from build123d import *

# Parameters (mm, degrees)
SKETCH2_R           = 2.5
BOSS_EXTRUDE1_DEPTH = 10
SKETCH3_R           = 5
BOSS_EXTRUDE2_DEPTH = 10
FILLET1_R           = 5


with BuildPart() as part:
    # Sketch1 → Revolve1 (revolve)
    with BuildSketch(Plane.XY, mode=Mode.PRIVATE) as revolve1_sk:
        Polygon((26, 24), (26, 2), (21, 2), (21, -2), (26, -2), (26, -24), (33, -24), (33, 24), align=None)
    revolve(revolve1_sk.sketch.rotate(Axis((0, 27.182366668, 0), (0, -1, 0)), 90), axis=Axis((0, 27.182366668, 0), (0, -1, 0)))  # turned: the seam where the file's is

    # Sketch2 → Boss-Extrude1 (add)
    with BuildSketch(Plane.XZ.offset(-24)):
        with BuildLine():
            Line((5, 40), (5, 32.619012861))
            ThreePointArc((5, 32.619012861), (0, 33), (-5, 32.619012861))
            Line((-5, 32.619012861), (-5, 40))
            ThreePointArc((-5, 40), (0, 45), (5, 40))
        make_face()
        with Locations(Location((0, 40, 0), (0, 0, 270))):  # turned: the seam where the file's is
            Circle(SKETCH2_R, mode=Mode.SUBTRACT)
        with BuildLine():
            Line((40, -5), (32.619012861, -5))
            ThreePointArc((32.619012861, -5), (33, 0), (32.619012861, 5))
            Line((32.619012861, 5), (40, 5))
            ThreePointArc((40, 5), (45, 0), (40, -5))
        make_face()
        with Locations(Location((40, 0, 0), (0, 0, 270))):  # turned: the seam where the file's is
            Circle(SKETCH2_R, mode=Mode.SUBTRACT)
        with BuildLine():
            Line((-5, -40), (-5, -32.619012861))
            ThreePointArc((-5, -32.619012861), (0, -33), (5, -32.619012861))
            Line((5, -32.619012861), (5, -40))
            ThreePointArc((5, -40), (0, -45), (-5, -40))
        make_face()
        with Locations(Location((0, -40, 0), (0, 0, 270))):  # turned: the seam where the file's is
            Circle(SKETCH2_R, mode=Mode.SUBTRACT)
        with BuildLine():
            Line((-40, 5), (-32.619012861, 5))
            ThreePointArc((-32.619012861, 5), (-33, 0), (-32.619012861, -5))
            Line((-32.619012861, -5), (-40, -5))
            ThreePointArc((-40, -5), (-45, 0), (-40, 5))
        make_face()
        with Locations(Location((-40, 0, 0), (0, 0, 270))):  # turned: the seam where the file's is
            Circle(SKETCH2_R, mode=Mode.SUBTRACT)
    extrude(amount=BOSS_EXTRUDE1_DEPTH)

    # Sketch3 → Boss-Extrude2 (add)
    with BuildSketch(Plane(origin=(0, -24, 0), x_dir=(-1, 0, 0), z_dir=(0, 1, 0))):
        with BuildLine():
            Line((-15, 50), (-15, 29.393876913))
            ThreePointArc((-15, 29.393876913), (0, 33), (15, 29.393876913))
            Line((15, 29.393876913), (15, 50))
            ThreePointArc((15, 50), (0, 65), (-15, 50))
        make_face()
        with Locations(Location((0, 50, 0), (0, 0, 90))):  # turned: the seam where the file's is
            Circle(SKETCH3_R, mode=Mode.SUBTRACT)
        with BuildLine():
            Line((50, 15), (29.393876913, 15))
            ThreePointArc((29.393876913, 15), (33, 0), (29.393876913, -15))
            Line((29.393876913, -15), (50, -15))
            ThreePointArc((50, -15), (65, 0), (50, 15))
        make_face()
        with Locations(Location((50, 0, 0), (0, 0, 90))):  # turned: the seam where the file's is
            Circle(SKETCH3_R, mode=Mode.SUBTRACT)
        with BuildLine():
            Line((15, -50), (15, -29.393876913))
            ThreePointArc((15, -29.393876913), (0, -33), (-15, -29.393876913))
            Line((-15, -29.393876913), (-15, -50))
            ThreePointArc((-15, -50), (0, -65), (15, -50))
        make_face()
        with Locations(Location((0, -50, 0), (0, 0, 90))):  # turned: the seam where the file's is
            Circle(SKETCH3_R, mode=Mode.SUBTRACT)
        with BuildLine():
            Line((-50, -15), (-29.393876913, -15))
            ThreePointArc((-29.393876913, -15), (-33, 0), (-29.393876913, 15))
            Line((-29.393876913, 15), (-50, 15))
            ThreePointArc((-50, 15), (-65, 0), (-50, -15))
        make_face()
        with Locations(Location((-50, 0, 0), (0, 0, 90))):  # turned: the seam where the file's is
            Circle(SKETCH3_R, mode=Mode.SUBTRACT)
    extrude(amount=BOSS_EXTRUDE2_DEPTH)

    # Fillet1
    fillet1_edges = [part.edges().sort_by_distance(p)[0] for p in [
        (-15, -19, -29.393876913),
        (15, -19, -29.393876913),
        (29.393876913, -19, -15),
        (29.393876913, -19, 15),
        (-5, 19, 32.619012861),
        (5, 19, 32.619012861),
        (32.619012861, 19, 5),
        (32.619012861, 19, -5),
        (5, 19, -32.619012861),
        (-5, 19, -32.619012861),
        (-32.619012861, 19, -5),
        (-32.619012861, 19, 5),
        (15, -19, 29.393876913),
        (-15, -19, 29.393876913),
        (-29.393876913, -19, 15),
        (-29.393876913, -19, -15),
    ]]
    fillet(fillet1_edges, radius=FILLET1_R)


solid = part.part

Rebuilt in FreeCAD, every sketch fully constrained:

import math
import FreeCAD as App
import Part
import Sketcher

V = App.Vector
Q = App.Units.Quantity


def edges_at(feature, points):
    """Names of the edges that pass closest to the given points."""
    edges = feature.Shape.Edges
    near = lambda p: min(range(len(edges)), key=lambda i: edges[i].distToShape(Part.Vertex(*p))[0])
    return sorted({f"Edge{near(p) + 1}" for p in points})


def add_polygon(sketch, points):
    """Adds a closed chain of lines whose ends are joined by coincident constraints."""
    first, n = sketch.GeometryCount, len(points)
    for a, b in zip(points, points[1:] + points[:1]):
        sketch.addGeometry(Part.LineSegment(App.Vector(*a, 0), App.Vector(*b, 0)), False)
    for i in range(n):
        sketch.addConstraint(Sketcher.Constraint("Coincident", first + i, 2, first + (i + 1) % n, 1))

doc = App.newDocument("Part")
body = doc.addObject("PartDesign::Body", "Body")

sketch1 = doc.addObject("Sketcher::SketchObject", "Sketch")
body.addObject(sketch1)
sketch1.AttachmentSupport = (doc.XY_Plane, [""])
sketch1.MapMode = "FlatFace"
add_polygon(sketch1, [(26, 24), (26, 2), (21, 2), (21, -2), (26, -2), (26, -24), (33, -24), (33, 24)])
sketch1.addConstraint(Sketcher.Constraint("Vertical", 0))
sketch1.addConstraint(Sketcher.Constraint("Horizontal", 1))
sketch1.addConstraint(Sketcher.Constraint("Vertical", 2))
sketch1.addConstraint(Sketcher.Constraint("Horizontal", 3))
sketch1.addConstraint(Sketcher.Constraint("Vertical", 4))
sketch1.addConstraint(Sketcher.Constraint("Horizontal", 5))
sketch1.addConstraint(Sketcher.Constraint("Vertical", 6))
sketch1.addConstraint(Sketcher.Constraint("Horizontal", 7))
sketch1.addConstraint(Sketcher.Constraint("Symmetric", 0, 2, 3, 2, -1))
sketch1.addConstraint(Sketcher.Constraint("Equal", 0, 4))
sketch1.addConstraint(Sketcher.Constraint("DistanceX", 1, 2, 1, 1, Q("5 mm")))
sketch1.addConstraint(Sketcher.Constraint("DistanceX", 5, 1, 5, 2, Q("7 mm")))
sketch1.addConstraint(Sketcher.Constraint("DistanceY", 0, 2, 0, 1, Q("22 mm")))
sketch1.addConstraint(Sketcher.Constraint("DistanceY", 2, 2, 2, 1, Q("4 mm")))
sketch1.addConstraint(Sketcher.Constraint("DistanceX", -1, 1, 0, 2, Q("26 mm")))
revolution = doc.addObject("PartDesign::Revolution", "Revolution")
body.addObject(revolution)
revolution.Profile = sketch1
revolution.ReferenceAxis = (sketch1, ["V_Axis"])
revolution.Angle = 360

sketch2 = doc.addObject("Sketcher::SketchObject", "Sketch001")
body.addObject(sketch2)
sketch2.AttachmentSupport = (doc.XZ_Plane, [""])
sketch2.MapMode = "FlatFace"
sketch2.AttachmentOffset = App.Placement(V(0, 0, -24), App.Rotation())
sketch2.addGeometry(Part.LineSegment(V(5, 32.6, 0), V(5, 40, 0)), False)
sketch2.addGeometry(Part.ArcOfCircle(Part.Circle(V(0, 40, 0), V(0, 0, 1), 5), math.radians(0), math.radians(180)), False)
sketch2.addGeometry(Part.LineSegment(V(-5, 40, 0), V(-5, 32.6, 0)), False)
sketch2.addGeometry(Part.ArcOfCircle(Part.Circle(V(0, 0, 0), V(0, 0, 1), 33), math.radians(81.29), math.radians(98.71)), False)
sketch2.addGeometry(Part.Circle(V(0, 40, 0), V(0, 0, 1), 2.5), False)
sketch2.addGeometry(Part.LineSegment(V(32.6, -5, 0), V(40, -5, 0)), False)
sketch2.addGeometry(Part.ArcOfCircle(Part.Circle(V(40, 0, 0), V(0, 0, 1), 5), math.radians(-90), math.radians(90)), False)
sketch2.addGeometry(Part.LineSegment(V(40, 5, 0), V(32.6, 5, 0)), False)
sketch2.addGeometry(Part.ArcOfCircle(Part.Circle(V(0, 0, 0), V(0, 0, 1), 33), math.radians(-8.71), math.radians(8.71)), False)
sketch2.addGeometry(Part.Circle(V(40, 0, 0), V(0, 0, 1), 2.5), False)
sketch2.addGeometry(Part.LineSegment(V(-5, -32.6, 0), V(-5, -40, 0)), False)
sketch2.addGeometry(Part.ArcOfCircle(Part.Circle(V(0, -40, 0), V(0, 0, 1), 5), math.radians(180), math.radians(360)), False)
sketch2.addGeometry(Part.LineSegment(V(5, -40, 0), V(5, -32.6, 0)), False)
sketch2.addGeometry(Part.ArcOfCircle(Part.Circle(V(0, 0, 0), V(0, 0, 1), 33), math.radians(-98.71), math.radians(-81.29)), False)
sketch2.addGeometry(Part.Circle(V(0, -40, 0), V(0, 0, 1), 2.5), False)
sketch2.addGeometry(Part.LineSegment(V(-32.6, 5, 0), V(-40, 5, 0)), False)
sketch2.addGeometry(Part.ArcOfCircle(Part.Circle(V(-40, 0, 0), V(0, 0, 1), 5), math.radians(90), math.radians(270)), False)
sketch2.addGeometry(Part.LineSegment(V(-40, -5, 0), V(-32.6, -5, 0)), False)
sketch2.addGeometry(Part.ArcOfCircle(Part.Circle(V(0, 0, 0), V(0, 0, 1), 33), math.radians(171.29), math.radians(188.71)), False)
sketch2.addGeometry(Part.Circle(V(-40, 0, 0), V(0, 0, 1), 2.5), False)
sketch2.addConstraint(Sketcher.Constraint("Tangent", 0, 2, 1, 1))
sketch2.addConstraint(Sketcher.Constraint("Tangent", 1, 2, 2, 1))
sketch2.addConstraint(Sketcher.Constraint("Coincident", 2, 2, 3, 2))
sketch2.addConstraint(Sketcher.Constraint("Coincident", 3, 1, 0, 1))
sketch2.addConstraint(Sketcher.Constraint("Tangent", 5, 2, 6, 1))
sketch2.addConstraint(Sketcher.Constraint("Tangent", 6, 2, 7, 1))
sketch2.addConstraint(Sketcher.Constraint("Coincident", 7, 2, 8, 2))
sketch2.addConstraint(Sketcher.Constraint("Coincident", 8, 1, 5, 1))
sketch2.addConstraint(Sketcher.Constraint("Tangent", 10, 2, 11, 1))
sketch2.addConstraint(Sketcher.Constraint("Tangent", 11, 2, 12, 1))
sketch2.addConstraint(Sketcher.Constraint("Coincident", 12, 2, 13, 2))
sketch2.addConstraint(Sketcher.Constraint("Coincident", 13, 1, 10, 1))
sketch2.addConstraint(Sketcher.Constraint("Tangent", 15, 2, 16, 1))
sketch2.addConstraint(Sketcher.Constraint("Tangent", 16, 2, 17, 1))
sketch2.addConstraint(Sketcher.Constraint("Coincident", 17, 2, 18, 2))
sketch2.addConstraint(Sketcher.Constraint("Coincident", 18, 1, 15, 1))
sketch2.addConstraint(Sketcher.Constraint("Vertical", 0))
sketch2.addConstraint(Sketcher.Constraint("Vertical", 2))
sketch2.addConstraint(Sketcher.Constraint("Horizontal", 5))
sketch2.addConstraint(Sketcher.Constraint("Horizontal", 7))
sketch2.addConstraint(Sketcher.Constraint("Vertical", 10))
sketch2.addConstraint(Sketcher.Constraint("Vertical", 12))
sketch2.addConstraint(Sketcher.Constraint("Horizontal", 15))
sketch2.addConstraint(Sketcher.Constraint("Horizontal", 17))
sketch2.addConstraint(Sketcher.Constraint("Coincident", 3, 3, -1, 1))
sketch2.addConstraint(Sketcher.Constraint("Coincident", 8, 3, -1, 1))
sketch2.addConstraint(Sketcher.Constraint("Coincident", 13, 3, -1, 1))
sketch2.addConstraint(Sketcher.Constraint("Coincident", 18, 3, -1, 1))
sketch2.addConstraint(Sketcher.Constraint("Coincident", 4, 3, 1, 3))
sketch2.addConstraint(Sketcher.Constraint("Coincident", 9, 3, 6, 3))
sketch2.addConstraint(Sketcher.Constraint("Coincident", 14, 3, 11, 3))
sketch2.addConstraint(Sketcher.Constraint("Coincident", 19, 3, 16, 3))
sketch2.addConstraint(Sketcher.Constraint("Equal", 1, 6))
sketch2.addConstraint(Sketcher.Constraint("Equal", 3, 8))
sketch2.addConstraint(Sketcher.Constraint("Equal", 4, 9))
sketch2.addConstraint(Sketcher.Constraint("Equal", 6, 11))
sketch2.addConstraint(Sketcher.Constraint("Equal", 8, 13))
sketch2.addConstraint(Sketcher.Constraint("Equal", 9, 14))
sketch2.addConstraint(Sketcher.Constraint("Equal", 11, 16))
sketch2.addConstraint(Sketcher.Constraint("Equal", 13, 18))
sketch2.addConstraint(Sketcher.Constraint("Equal", 14, 19))
sketch2.addConstraint(Sketcher.Constraint("Symmetric", 1, 3, 11, 3, -1, 1))
sketch2.addConstraint(Sketcher.Constraint("Symmetric", 6, 3, 16, 3, -1, 1))
sketch2.addConstraint(Sketcher.Constraint("PointOnObject", 1, 3, -2))
sketch2.addConstraint(Sketcher.Constraint("PointOnObject", 6, 3, -1))
sketch2.addConstraint(Sketcher.Constraint("Equal", 17, 0))
sketch2.addConstraint(Sketcher.Constraint("Diameter", 4, Q("5 mm")))
sketch2.addConstraint(Sketcher.Constraint("Radius", 1, Q("5 mm")))
sketch2.addConstraint(Sketcher.Constraint("Radius", 3, Q("33 mm")))
sketch2.addConstraint(Sketcher.Constraint("DistanceY", -1, 1, 1, 3, Q("40 mm")))
pad1 = doc.addObject("PartDesign::Pad", "Pad")
body.addObject(pad1)
pad1.Profile = sketch2
pad1.Length = 10

sketch3 = doc.addObject("Sketcher::SketchObject", "Sketch002")
body.addObject(sketch3)
sketch3.AttachmentSupport = (doc.XZ_Plane, [""])
sketch3.MapMode = "FlatFace"
sketch3.AttachmentOffset = App.Placement(V(0, 0, 24), App.Rotation())
sketch3.addGeometry(Part.LineSegment(V(15, 50, 0), V(15, 29, 0)), False)
sketch3.addGeometry(Part.ArcOfCircle(Part.Circle(V(0, 0, 0), V(0, 0, 1), 33), math.radians(63), math.radians(117)), False)
sketch3.addGeometry(Part.LineSegment(V(-15, 29, 0), V(-15, 50, 0)), False)
sketch3.addGeometry(Part.ArcOfCircle(Part.Circle(V(0, 50, 0), V(0, 0, 1), 15), math.radians(0), math.radians(180)), False)
sketch3.addGeometry(Part.Circle(V(0, 50, 0), V(0, 0, 1), 5), False)
sketch3.addGeometry(Part.LineSegment(V(-50, 15, 0), V(-29, 15, 0)), False)
sketch3.addGeometry(Part.ArcOfCircle(Part.Circle(V(0, 0, 0), V(0, 0, 1), 33), math.radians(153), math.radians(207)), False)
sketch3.addGeometry(Part.LineSegment(V(-29, -15, 0), V(-50, -15, 0)), False)
sketch3.addGeometry(Part.ArcOfCircle(Part.Circle(V(-50, 0, 0), V(0, 0, 1), 15), math.radians(90), math.radians(270)), False)
sketch3.addGeometry(Part.Circle(V(-50, 0, 0), V(0, 0, 1), 5), False)
sketch3.addGeometry(Part.LineSegment(V(-15, -50, 0), V(-15, -29, 0)), False)
sketch3.addGeometry(Part.ArcOfCircle(Part.Circle(V(0, 0, 0), V(0, 0, 1), 33), math.radians(-117), math.radians(-63)), False)
sketch3.addGeometry(Part.LineSegment(V(15, -29, 0), V(15, -50, 0)), False)
sketch3.addGeometry(Part.ArcOfCircle(Part.Circle(V(0, -50, 0), V(0, 0, 1), 15), math.radians(180), math.radians(360)), False)
sketch3.addGeometry(Part.Circle(V(0, -50, 0), V(0, 0, 1), 5), False)
sketch3.addGeometry(Part.LineSegment(V(50, -15, 0), V(29, -15, 0)), False)
sketch3.addGeometry(Part.ArcOfCircle(Part.Circle(V(0, 0, 0), V(0, 0, 1), 33), math.radians(-27), math.radians(27)), False)
sketch3.addGeometry(Part.LineSegment(V(29, 15, 0), V(50, 15, 0)), False)
sketch3.addGeometry(Part.ArcOfCircle(Part.Circle(V(50, 0, 0), V(0, 0, 1), 15), math.radians(-90), math.radians(90)), False)
sketch3.addGeometry(Part.Circle(V(50, 0, 0), V(0, 0, 1), 5), False)
sketch3.addConstraint(Sketcher.Constraint("Coincident", 0, 2, 1, 1))
sketch3.addConstraint(Sketcher.Constraint("Coincident", 1, 2, 2, 1))
sketch3.addConstraint(Sketcher.Constraint("Tangent", 2, 2, 3, 2))
sketch3.addConstraint(Sketcher.Constraint("Tangent", 3, 1, 0, 1))
sketch3.addConstraint(Sketcher.Constraint("Coincident", 5, 2, 6, 1))
sketch3.addConstraint(Sketcher.Constraint("Coincident", 6, 2, 7, 1))
sketch3.addConstraint(Sketcher.Constraint("Tangent", 7, 2, 8, 2))
sketch3.addConstraint(Sketcher.Constraint("Tangent", 8, 1, 5, 1))
sketch3.addConstraint(Sketcher.Constraint("Coincident", 10, 2, 11, 1))
sketch3.addConstraint(Sketcher.Constraint("Coincident", 11, 2, 12, 1))
sketch3.addConstraint(Sketcher.Constraint("Tangent", 12, 2, 13, 2))
sketch3.addConstraint(Sketcher.Constraint("Tangent", 13, 1, 10, 1))
sketch3.addConstraint(Sketcher.Constraint("Coincident", 15, 2, 16, 1))
sketch3.addConstraint(Sketcher.Constraint("Coincident", 16, 2, 17, 1))
sketch3.addConstraint(Sketcher.Constraint("Tangent", 17, 2, 18, 2))
sketch3.addConstraint(Sketcher.Constraint("Tangent", 18, 1, 15, 1))
sketch3.addConstraint(Sketcher.Constraint("Vertical", 0))
sketch3.addConstraint(Sketcher.Constraint("Vertical", 2))
sketch3.addConstraint(Sketcher.Constraint("Horizontal", 5))
sketch3.addConstraint(Sketcher.Constraint("Horizontal", 7))
sketch3.addConstraint(Sketcher.Constraint("Vertical", 10))
sketch3.addConstraint(Sketcher.Constraint("Vertical", 12))
sketch3.addConstraint(Sketcher.Constraint("Horizontal", 15))
sketch3.addConstraint(Sketcher.Constraint("Horizontal", 17))
sketch3.addConstraint(Sketcher.Constraint("Coincident", 1, 3, -1, 1))
sketch3.addConstraint(Sketcher.Constraint("Coincident", 6, 3, -1, 1))
sketch3.addConstraint(Sketcher.Constraint("Coincident", 11, 3, -1, 1))
sketch3.addConstraint(Sketcher.Constraint("Coincident", 16, 3, -1, 1))
sketch3.addConstraint(Sketcher.Constraint("Coincident", 4, 3, 3, 3))
sketch3.addConstraint(Sketcher.Constraint("Coincident", 9, 3, 8, 3))
sketch3.addConstraint(Sketcher.Constraint("Coincident", 14, 3, 13, 3))
sketch3.addConstraint(Sketcher.Constraint("Coincident", 19, 3, 18, 3))
sketch3.addConstraint(Sketcher.Constraint("Equal", 1, 6))
sketch3.addConstraint(Sketcher.Constraint("Equal", 3, 8))
sketch3.addConstraint(Sketcher.Constraint("Equal", 4, 9))
sketch3.addConstraint(Sketcher.Constraint("Equal", 6, 11))
sketch3.addConstraint(Sketcher.Constraint("Equal", 8, 13))
sketch3.addConstraint(Sketcher.Constraint("Equal", 9, 14))
sketch3.addConstraint(Sketcher.Constraint("Equal", 11, 16))
sketch3.addConstraint(Sketcher.Constraint("Equal", 13, 18))
sketch3.addConstraint(Sketcher.Constraint("Equal", 14, 19))
sketch3.addConstraint(Sketcher.Constraint("Symmetric", 3, 3, 13, 3, -1, 1))
sketch3.addConstraint(Sketcher.Constraint("Symmetric", 8, 3, 18, 3, -1, 1))
sketch3.addConstraint(Sketcher.Constraint("PointOnObject", 3, 3, -2))
sketch3.addConstraint(Sketcher.Constraint("PointOnObject", 8, 3, -1))
sketch3.addConstraint(Sketcher.Constraint("Equal", 17, 0))
sketch3.addConstraint(Sketcher.Constraint("Diameter", 4, Q("10 mm")))
sketch3.addConstraint(Sketcher.Constraint("Radius", 1, Q("33 mm")))
sketch3.addConstraint(Sketcher.Constraint("Radius", 3, Q("15 mm")))
sketch3.addConstraint(Sketcher.Constraint("DistanceY", -1, 1, 3, 3, Q("50 mm")))
pad2 = doc.addObject("PartDesign::Pad", "Pad001")
body.addObject(pad2)
pad2.Profile = sketch3
pad2.Length = 10
pad2.Reversed = True
doc.recompute()

fillet = doc.addObject("PartDesign::Fillet", "Fillet")
body.addObject(fillet)
fillet.Base = (pad2, edges_at(pad2, [
    (-15, -19, -29.394),
    (15, -19, -29.394),
    (29.394, -19, -15),
    (29.394, -19, 15),
    (-5, 19, 32.619),
    (5, 19, 32.619),
    (32.619, 19, 5),
    (32.619, 19, -5),
    (5, 19, -32.619),
    (-5, 19, -32.619),
    (-32.619, 19, -5),
    (-32.619, 19, 5),
    (15, -19, 29.394),
    (-15, -19, 29.394),
    (-29.394, -19, 15),
    (-29.394, -19, -15),
]))
fillet.Radius = 5

doc.recompute()
